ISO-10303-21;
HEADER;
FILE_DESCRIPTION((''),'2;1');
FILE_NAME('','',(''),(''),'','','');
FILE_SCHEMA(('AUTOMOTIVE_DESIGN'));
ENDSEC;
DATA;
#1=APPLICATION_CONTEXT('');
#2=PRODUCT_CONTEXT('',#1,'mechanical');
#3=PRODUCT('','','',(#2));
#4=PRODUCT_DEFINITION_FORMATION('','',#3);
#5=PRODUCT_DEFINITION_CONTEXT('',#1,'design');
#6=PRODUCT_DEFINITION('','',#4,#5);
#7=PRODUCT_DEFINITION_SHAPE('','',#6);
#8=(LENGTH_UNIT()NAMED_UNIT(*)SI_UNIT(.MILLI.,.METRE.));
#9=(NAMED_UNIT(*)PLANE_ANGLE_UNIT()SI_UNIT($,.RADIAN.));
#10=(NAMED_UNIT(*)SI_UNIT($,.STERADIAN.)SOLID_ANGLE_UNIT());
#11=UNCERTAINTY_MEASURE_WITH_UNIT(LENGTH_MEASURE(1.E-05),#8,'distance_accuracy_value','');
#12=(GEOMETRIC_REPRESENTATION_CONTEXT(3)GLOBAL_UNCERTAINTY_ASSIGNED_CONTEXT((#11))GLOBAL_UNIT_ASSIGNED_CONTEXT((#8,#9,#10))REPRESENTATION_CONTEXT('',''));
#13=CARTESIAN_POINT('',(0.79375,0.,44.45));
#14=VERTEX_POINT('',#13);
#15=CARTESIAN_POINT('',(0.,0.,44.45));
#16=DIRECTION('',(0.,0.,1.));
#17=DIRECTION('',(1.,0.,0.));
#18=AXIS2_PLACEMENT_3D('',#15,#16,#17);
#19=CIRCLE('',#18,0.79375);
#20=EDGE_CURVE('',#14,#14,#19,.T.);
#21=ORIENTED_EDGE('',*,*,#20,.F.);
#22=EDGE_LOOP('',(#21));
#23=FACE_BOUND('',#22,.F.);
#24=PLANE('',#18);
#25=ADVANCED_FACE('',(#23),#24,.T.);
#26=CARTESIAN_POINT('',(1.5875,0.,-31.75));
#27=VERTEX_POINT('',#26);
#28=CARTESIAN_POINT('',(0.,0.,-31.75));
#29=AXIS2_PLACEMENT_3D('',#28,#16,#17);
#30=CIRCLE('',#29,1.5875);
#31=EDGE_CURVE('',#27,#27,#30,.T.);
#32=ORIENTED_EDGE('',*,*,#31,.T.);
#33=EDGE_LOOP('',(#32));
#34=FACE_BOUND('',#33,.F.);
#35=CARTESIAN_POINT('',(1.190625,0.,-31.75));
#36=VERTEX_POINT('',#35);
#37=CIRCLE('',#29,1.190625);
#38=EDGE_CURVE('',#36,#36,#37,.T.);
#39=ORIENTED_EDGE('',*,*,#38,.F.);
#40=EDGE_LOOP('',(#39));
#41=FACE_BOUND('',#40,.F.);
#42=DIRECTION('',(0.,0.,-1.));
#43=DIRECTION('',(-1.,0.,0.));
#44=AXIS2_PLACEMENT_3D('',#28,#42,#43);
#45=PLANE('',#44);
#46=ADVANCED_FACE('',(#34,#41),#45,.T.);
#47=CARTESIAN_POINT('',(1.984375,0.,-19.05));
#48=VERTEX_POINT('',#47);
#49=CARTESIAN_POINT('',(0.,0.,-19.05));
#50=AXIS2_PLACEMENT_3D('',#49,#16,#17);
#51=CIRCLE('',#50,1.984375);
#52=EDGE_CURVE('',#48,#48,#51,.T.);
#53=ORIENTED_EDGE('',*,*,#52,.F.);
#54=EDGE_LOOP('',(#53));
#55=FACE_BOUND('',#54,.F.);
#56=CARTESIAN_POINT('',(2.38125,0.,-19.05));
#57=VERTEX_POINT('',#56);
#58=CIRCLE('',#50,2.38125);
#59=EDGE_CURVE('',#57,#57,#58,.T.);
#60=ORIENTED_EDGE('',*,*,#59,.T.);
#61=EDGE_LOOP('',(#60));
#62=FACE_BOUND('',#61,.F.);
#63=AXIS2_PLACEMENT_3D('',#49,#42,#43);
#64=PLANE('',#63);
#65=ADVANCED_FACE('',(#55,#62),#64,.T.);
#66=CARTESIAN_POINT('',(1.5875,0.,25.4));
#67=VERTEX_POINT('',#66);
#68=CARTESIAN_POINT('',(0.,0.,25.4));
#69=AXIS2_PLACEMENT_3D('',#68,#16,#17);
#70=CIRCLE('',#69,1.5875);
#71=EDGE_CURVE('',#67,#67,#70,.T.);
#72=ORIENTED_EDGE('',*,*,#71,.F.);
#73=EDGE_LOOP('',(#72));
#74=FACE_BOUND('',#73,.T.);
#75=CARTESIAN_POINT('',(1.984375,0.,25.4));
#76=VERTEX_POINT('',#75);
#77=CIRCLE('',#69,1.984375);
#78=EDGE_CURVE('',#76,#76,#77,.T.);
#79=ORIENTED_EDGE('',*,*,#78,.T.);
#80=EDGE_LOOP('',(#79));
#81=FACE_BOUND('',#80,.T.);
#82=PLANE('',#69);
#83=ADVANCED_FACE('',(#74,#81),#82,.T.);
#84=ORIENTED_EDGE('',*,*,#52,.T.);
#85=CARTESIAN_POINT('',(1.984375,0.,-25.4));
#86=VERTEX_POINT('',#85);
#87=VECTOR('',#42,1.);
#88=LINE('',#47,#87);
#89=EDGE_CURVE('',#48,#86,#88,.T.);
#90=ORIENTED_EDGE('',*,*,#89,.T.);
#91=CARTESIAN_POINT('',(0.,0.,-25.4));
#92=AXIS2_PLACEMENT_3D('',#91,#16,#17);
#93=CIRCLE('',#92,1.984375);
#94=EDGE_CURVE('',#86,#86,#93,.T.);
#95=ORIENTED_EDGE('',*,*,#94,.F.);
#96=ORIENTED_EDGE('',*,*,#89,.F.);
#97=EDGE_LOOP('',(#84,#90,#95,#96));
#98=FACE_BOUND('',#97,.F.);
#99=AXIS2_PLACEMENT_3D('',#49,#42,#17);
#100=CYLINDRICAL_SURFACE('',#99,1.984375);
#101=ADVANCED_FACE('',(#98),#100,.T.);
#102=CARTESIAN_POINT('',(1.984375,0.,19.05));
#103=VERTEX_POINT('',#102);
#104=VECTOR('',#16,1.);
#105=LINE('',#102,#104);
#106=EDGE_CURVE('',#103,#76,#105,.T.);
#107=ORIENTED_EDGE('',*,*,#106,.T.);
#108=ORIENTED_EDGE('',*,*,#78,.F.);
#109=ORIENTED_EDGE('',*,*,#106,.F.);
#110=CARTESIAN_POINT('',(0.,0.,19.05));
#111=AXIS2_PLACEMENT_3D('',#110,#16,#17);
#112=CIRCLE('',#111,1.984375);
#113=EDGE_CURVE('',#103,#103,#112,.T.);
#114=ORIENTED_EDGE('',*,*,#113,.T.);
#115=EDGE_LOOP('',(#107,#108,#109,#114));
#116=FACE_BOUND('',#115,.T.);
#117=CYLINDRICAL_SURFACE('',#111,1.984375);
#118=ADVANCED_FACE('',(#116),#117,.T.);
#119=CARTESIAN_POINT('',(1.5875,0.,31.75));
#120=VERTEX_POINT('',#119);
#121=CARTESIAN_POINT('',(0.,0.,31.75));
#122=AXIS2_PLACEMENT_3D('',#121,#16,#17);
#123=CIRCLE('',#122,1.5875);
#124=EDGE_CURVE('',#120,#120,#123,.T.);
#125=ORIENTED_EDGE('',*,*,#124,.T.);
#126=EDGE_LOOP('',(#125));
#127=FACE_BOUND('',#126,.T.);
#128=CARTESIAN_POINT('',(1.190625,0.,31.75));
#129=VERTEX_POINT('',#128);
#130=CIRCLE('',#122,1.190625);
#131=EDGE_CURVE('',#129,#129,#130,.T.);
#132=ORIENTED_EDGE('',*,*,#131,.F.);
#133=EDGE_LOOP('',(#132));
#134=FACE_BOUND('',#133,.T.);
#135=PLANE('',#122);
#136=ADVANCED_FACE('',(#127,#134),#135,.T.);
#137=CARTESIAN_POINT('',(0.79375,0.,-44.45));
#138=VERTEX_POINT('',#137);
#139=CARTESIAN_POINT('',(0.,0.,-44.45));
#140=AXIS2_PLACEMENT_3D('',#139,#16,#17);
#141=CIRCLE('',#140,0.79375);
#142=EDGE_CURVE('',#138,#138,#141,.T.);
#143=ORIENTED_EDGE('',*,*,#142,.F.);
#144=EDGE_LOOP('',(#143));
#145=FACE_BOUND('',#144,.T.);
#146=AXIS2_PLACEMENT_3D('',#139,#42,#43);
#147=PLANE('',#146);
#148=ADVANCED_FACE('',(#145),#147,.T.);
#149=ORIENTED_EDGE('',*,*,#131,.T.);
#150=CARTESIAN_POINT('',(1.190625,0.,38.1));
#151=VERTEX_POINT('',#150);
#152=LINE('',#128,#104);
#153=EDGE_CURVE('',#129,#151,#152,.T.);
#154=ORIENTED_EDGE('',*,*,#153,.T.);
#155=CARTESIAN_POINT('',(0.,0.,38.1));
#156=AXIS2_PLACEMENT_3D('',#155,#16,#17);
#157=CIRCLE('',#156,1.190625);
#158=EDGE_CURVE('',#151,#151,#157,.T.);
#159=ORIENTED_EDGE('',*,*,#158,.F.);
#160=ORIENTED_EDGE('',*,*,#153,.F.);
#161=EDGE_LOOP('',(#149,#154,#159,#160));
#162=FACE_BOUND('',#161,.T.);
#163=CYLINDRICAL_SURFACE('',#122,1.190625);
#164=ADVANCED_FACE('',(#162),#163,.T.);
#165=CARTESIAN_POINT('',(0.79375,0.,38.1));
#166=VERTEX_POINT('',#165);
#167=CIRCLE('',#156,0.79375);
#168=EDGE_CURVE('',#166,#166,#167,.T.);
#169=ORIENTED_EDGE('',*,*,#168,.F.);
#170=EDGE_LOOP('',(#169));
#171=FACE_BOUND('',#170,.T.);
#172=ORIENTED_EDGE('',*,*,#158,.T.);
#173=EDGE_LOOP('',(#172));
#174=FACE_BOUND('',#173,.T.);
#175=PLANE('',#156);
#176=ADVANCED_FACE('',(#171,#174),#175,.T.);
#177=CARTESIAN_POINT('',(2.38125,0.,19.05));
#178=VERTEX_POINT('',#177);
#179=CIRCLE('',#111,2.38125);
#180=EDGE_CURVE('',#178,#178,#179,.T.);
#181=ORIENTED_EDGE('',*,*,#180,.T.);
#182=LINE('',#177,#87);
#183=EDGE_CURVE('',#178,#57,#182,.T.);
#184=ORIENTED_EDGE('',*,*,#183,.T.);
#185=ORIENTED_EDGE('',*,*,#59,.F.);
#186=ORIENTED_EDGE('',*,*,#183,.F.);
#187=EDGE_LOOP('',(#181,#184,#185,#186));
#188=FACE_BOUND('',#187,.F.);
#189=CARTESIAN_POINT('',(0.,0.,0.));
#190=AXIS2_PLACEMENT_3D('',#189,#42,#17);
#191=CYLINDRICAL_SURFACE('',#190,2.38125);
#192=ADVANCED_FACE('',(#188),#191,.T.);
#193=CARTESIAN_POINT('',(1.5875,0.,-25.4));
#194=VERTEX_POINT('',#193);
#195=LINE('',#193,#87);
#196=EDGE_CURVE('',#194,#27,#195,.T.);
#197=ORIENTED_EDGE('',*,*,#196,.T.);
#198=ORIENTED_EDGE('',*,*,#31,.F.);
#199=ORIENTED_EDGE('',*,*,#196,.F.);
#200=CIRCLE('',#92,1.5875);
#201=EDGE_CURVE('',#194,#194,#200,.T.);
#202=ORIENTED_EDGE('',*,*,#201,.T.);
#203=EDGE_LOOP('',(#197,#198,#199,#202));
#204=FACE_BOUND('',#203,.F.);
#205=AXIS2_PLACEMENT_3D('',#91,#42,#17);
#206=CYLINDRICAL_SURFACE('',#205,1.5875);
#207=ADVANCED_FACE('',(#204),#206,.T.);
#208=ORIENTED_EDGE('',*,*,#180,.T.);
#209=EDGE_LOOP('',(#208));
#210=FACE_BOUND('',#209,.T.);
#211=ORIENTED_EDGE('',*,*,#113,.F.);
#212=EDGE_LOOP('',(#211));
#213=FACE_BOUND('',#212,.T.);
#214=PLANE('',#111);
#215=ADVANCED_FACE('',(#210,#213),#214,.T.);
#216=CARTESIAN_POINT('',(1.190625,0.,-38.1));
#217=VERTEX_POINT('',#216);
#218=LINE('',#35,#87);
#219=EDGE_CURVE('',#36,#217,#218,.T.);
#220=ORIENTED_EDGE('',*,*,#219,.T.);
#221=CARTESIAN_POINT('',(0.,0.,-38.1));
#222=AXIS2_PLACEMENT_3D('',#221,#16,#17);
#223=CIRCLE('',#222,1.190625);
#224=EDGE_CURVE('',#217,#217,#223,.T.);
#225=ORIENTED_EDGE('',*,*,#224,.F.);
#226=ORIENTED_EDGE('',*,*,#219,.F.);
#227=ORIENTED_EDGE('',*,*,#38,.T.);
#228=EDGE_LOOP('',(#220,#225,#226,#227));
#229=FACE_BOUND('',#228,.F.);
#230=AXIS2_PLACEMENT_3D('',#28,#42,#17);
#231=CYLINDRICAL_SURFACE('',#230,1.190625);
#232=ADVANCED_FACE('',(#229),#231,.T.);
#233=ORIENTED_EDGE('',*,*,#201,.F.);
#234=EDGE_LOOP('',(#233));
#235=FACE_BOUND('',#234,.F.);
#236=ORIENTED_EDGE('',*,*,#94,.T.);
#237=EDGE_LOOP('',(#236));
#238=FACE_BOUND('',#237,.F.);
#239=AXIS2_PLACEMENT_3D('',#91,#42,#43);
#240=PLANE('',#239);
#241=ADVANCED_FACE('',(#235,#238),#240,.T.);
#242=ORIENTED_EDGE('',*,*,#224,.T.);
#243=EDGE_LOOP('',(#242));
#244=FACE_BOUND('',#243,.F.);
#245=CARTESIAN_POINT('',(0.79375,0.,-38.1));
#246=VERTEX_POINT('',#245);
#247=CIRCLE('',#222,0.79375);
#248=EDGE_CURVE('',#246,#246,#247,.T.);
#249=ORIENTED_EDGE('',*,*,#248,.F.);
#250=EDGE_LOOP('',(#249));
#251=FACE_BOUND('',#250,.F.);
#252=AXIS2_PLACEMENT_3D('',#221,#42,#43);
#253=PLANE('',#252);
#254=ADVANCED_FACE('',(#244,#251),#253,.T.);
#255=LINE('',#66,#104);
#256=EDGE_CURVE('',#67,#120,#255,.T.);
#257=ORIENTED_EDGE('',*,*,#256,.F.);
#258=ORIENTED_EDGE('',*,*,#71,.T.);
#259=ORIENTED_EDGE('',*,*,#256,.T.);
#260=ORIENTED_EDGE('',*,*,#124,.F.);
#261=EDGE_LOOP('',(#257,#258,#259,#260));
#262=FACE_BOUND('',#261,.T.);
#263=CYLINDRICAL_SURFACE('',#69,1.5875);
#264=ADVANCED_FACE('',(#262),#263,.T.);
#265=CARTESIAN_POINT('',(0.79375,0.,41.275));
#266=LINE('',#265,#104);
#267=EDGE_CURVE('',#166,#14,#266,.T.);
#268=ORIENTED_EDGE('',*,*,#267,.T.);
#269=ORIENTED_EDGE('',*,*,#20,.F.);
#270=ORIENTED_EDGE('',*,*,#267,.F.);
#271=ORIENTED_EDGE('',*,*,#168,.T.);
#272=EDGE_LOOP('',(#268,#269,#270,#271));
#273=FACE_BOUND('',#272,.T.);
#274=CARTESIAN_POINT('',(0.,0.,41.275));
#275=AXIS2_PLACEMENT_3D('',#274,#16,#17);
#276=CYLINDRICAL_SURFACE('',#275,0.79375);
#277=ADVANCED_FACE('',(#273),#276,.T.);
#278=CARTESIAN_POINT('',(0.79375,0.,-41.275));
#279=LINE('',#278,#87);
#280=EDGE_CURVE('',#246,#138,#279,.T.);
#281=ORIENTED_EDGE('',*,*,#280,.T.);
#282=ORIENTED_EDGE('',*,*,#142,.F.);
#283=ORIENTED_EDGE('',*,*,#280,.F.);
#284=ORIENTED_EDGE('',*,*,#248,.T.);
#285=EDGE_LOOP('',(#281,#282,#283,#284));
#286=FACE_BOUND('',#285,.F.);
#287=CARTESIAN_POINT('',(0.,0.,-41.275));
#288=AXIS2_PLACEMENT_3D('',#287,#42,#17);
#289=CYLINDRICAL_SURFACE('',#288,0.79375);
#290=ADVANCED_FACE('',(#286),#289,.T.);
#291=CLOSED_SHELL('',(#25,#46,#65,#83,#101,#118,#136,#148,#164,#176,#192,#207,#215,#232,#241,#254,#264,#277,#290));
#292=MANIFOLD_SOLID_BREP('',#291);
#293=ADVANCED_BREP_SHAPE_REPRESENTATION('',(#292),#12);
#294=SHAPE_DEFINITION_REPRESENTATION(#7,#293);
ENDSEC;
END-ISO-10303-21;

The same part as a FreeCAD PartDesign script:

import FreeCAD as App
import Part
import Sketcher
from FreeCAD import Vector
Q = App.Units.Quantity


def add_polygon(sketch, points):
    """Adds a closed chain of lines whose ends are joined by coincident constraints."""
    first, n = sketch.GeometryCount, len(points)
    for a, b in zip(points, points[1:] + points[:1]):
        sketch.addGeometry(Part.LineSegment(App.Vector(*a, 0), App.Vector(*b, 0)), False)
    for i in range(n):
        sketch.addConstraint(Sketcher.Constraint("Coincident", first + i, 2, first + (i + 1) % n, 1))

doc = App.newDocument("Part")
params = doc.addObject("Spreadsheet::Sheet", "Params")
for row, (alias, value) in enumerate([
    ("sketch1_height", "0.75 in"),
    ("sketch1_width", "0.09375 in"),
    ("sketch1_width2", "0.015625 in"),
    ("revolution_angle", "360 deg"),
], start=1):
    params.set(f"A{row}", alias)
    params.set(f"B{row}", "=" + value)
    params.setAlias(f"B{row}", alias)

body = doc.addObject("PartDesign::Body", "Body")

# Sketch on XZ plane
sketch1 = body.newObject("Sketcher::SketchObject", "Sketch")
sketch1.AttachmentSupport = (doc.getObject("XZ_Plane"), [""])
sketch1.MapMode = "FlatFace"
add_polygon(sketch1, [(0, 0), (2.38, 0), (2.38, 19.05), (1.98, 19.05), (1.98, 25.4), (1.59, 25.4), (1.59, 31.75), (1.19, 31.75), (1.19, 38.1), (0.79, 38.1), (0.79, 44.45), (0, 44.45)])  # lines 0-11
sketch1.addConstraint(Sketcher.Constraint("Horizontal", 0))
sketch1.addConstraint(Sketcher.Constraint("Vertical", 1))
sketch1.addConstraint(Sketcher.Constraint("Horizontal", 2))
sketch1.addConstraint(Sketcher.Constraint("Vertical", 3))
sketch1.addConstraint(Sketcher.Constraint("Horizontal", 4))
sketch1.addConstraint(Sketcher.Constraint("Vertical", 5))
sketch1.addConstraint(Sketcher.Constraint("Horizontal", 6))
sketch1.addConstraint(Sketcher.Constraint("Vertical", 7))
sketch1.addConstraint(Sketcher.Constraint("Horizontal", 8))
sketch1.addConstraint(Sketcher.Constraint("Vertical", 9))
sketch1.addConstraint(Sketcher.Constraint("Horizontal", 10))
sketch1.addConstraint(Sketcher.Constraint("Vertical", 11))
sketch1.addConstraint(Sketcher.Constraint("Coincident", 11, 2, -1, 1))
sketch1.addConstraint(Sketcher.Constraint("Equal", 2, 4))
sketch1.addConstraint(Sketcher.Constraint("Equal", 4, 6))
sketch1.addConstraint(Sketcher.Constraint("Equal", 6, 8))
sketch1.addConstraint(Sketcher.Constraint("Equal", 3, 5))
sketch1.addConstraint(Sketcher.Constraint("Equal", 5, 7))
sketch1.addConstraint(Sketcher.Constraint("Equal", 7, 9))
sketch1.addConstraint(Sketcher.Constraint("DistanceY", -1, 1, 3, 2, Q("1 in")))
sketch1.addConstraint(Sketcher.Constraint("DistanceY", 1, 1, 1, 2, Q("0.75 in")))
sketch1.addConstraint(Sketcher.Constraint("DistanceX", 0, 1, 0, 2, Q("0.09375 in")))
sketch1.addConstraint(Sketcher.Constraint("DistanceX", 2, 2, 2, 1, Q("0.015625 in")))
sketch1.setExpression("Constraints[32]", "Params.sketch1_height")
sketch1.setExpression("Constraints[33]", "Params.sketch1_width")
sketch1.setExpression("Constraints[34]", "Params.sketch1_width2")
revolution = body.newObject("PartDesign::Revolution", "Revolution")
revolution.Profile = sketch1
revolution.ReferenceAxis = (sketch1, ["V_Axis"])
revolution.setExpression("Angle", "Params.revolution_angle")
body2 = doc.addObject("PartDesign::Body", "Body001")
doc.recompute()

body2.BaseFeature = body
doc.recompute()

mirroring = doc.addObject("Part::Mirroring", "Mirroring")
mirroring.Source = body
mirroring.Base = Vector(0, 0, 0)
mirroring.Normal = Vector(0, 0, 1)
body3 = doc.addObject("PartDesign::Body", "Body002")
body3.BaseFeature = mirroring
boolean = body2.newObject("PartDesign::Boolean", "Boolean")
boolean.Type = "Fuse"
boolean.addObjects([body3])
doc.recompute()
mirroring.Visibility = False

doc.recompute()
